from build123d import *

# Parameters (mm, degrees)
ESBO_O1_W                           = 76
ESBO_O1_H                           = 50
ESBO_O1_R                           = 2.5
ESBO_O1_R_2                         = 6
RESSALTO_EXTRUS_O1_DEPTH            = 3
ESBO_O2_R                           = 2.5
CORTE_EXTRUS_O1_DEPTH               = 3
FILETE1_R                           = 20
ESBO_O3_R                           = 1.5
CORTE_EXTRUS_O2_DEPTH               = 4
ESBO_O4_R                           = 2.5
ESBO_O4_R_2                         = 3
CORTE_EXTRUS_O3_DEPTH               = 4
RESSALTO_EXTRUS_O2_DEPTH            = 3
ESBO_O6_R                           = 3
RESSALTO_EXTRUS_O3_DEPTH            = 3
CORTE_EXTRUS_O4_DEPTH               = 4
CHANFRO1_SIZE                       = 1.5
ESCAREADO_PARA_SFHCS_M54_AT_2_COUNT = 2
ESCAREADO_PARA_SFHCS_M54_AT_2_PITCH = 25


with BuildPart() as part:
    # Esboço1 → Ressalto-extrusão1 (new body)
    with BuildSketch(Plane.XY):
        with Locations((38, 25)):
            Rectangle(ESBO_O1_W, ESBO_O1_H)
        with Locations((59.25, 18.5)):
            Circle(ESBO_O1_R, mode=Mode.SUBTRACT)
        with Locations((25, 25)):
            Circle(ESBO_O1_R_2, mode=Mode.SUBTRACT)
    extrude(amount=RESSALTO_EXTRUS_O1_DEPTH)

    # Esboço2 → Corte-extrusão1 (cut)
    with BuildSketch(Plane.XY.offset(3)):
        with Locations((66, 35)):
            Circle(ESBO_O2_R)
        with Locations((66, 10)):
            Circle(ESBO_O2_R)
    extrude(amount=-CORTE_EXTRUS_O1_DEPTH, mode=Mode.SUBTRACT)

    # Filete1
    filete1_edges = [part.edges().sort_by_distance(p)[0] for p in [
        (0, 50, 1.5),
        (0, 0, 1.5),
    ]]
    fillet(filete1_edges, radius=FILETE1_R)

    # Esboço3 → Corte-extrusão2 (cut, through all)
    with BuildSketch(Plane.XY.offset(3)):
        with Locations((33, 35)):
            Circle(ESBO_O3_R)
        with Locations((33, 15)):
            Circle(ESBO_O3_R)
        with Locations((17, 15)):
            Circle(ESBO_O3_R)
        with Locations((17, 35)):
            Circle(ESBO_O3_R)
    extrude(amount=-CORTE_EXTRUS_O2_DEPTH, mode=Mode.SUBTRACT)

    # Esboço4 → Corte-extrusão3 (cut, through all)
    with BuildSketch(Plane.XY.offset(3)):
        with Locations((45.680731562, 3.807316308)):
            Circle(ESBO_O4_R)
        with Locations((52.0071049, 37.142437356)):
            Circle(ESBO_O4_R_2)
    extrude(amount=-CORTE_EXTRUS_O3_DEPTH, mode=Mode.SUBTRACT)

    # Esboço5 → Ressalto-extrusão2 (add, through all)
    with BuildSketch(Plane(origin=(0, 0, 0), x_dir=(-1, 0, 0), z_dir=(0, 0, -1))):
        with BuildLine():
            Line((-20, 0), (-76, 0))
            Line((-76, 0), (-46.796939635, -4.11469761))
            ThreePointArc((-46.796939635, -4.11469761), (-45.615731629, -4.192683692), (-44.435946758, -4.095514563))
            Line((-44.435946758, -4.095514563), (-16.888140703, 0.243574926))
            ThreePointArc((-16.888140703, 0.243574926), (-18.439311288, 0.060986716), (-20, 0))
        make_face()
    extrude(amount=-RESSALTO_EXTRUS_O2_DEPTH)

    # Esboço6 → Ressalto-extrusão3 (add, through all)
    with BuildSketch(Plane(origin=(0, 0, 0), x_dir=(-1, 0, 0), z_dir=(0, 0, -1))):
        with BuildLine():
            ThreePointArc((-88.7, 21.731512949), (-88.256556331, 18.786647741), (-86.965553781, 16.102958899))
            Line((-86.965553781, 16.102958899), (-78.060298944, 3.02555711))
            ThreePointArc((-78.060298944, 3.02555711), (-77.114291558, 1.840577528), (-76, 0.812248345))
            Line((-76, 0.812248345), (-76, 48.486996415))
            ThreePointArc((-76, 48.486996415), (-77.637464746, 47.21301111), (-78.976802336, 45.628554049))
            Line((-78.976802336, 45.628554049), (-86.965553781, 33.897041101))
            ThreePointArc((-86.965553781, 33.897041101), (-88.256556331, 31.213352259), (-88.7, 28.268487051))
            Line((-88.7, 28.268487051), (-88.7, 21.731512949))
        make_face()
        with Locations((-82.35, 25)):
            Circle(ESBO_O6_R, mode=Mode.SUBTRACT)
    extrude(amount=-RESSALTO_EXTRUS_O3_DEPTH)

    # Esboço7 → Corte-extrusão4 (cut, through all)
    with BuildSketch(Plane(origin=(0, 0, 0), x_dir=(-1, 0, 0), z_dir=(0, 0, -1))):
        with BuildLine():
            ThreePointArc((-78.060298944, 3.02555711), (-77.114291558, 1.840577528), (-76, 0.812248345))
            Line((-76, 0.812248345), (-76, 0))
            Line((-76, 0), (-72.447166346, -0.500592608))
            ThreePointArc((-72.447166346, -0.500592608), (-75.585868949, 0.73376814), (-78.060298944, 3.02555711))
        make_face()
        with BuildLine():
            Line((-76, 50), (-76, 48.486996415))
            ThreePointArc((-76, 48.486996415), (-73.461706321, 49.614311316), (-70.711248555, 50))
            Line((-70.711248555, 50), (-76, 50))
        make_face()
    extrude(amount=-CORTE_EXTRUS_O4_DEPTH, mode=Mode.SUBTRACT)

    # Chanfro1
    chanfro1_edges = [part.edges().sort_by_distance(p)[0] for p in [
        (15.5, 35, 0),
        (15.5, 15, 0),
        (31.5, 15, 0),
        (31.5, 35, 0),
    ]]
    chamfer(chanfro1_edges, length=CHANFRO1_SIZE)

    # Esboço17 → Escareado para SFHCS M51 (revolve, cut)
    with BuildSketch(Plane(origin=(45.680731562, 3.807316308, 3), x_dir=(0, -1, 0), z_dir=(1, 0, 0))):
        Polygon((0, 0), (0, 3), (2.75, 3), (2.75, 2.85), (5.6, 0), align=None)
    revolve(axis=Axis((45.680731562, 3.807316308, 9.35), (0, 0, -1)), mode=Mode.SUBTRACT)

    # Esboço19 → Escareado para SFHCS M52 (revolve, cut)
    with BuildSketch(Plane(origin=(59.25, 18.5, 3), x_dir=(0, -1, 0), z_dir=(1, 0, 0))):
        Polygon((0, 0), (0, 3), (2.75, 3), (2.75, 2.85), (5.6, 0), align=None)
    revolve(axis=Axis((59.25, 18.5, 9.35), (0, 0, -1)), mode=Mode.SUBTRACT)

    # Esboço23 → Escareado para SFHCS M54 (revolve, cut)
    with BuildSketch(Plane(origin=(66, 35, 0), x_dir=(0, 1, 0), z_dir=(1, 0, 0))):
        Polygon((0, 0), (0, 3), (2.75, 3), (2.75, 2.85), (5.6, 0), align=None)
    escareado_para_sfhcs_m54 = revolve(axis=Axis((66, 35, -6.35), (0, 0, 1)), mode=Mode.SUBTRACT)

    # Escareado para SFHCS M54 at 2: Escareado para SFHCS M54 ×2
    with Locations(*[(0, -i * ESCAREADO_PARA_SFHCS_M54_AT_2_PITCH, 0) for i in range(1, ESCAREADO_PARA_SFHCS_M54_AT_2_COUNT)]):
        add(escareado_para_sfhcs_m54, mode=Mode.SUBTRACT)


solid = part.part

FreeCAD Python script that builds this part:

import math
import FreeCAD as App
import Part
import Sketcher

V = App.Vector
Q = App.Units.Quantity


def edges_at(feature, points):
    """Names of the edges that pass closest to the given points."""
    edges = feature.Shape.Edges
    near = lambda p: min(range(len(edges)), key=lambda i: edges[i].distToShape(Part.Vertex(*p))[0])
    return sorted({f"Edge{near(p) + 1}" for p in points})

doc = App.newDocument("Part")
body = doc.addObject("PartDesign::Body", "Body")

sketch1 = body.newObject("Sketcher::SketchObject", "Sketch")
sketch1.AttachmentSupport = (doc.getObject("XY_Plane"), [""])
sketch1.MapMode = "FlatFace"
sketch1.addGeometry([
    Part.LineSegment(V(0, 50, 0), V(0, 0, 0)),
    Part.LineSegment(V(0, 0, 0), V(76, 0, 0)),
    Part.LineSegment(V(76, 0, 0), V(76, 50, 0)),
    Part.LineSegment(V(76, 50, 0), V(0, 50, 0)),
    Part.Circle(V(59.2, 18.5, 0), V(0, 0, 1), 2.5),
    Part.Circle(V(25, 25, 0), V(0, 0, 1), 6),
], False)
sketch1.addConstraint([
    Sketcher.Constraint("Coincident", 0, 2, 1, 1),
    Sketcher.Constraint("Coincident", 1, 2, 2, 1),
    Sketcher.Constraint("Coincident", 2, 2, 3, 1),
    Sketcher.Constraint("Coincident", 3, 2, 0, 1),
    Sketcher.Constraint("Vertical", 0),
    Sketcher.Constraint("Horizontal", 1),
    Sketcher.Constraint("Vertical", 2),
    Sketcher.Constraint("Horizontal", 3),
    Sketcher.Constraint("Coincident", 0, 2, -1, 1),
    Sketcher.Constraint("Diameter", 4, Q("5 mm")),
    Sketcher.Constraint("Diameter", 5, Q("12 mm")),
    Sketcher.Constraint("DistanceX", 1, 1, 1, 2, Q("76 mm")),
    Sketcher.Constraint("DistanceY", 0, 2, 0, 1, Q("50 mm")),
    Sketcher.Constraint("DistanceX", -1, 1, 5, 3, Q("25 mm")),
    Sketcher.Constraint("DistanceY", -1, 1, 5, 3, Q("25 mm")),
    Sketcher.Constraint("DistanceY", -1, 1, 4, 3, Q("18.5 mm")),
    Sketcher.Constraint("DistanceX", -1, 1, 4, 3, Q("59.25 mm")),
])
pad1 = body.newObject("PartDesign::Pad", "Pad")
pad1.Profile = sketch1
pad1.Length = 3

sketch2 = body.newObject("Sketcher::SketchObject", "Sketch001")
sketch2.AttachmentSupport = (doc.getObject("XY_Plane"), [""])
sketch2.MapMode = "FlatFace"
sketch2.AttachmentOffset = App.Placement(V(0, 0, 3), App.Rotation())
sketch2.addGeometry([
    Part.Circle(V(66, 35, 0), V(0, 0, 1), 2.5),
    Part.Circle(V(66, 10, 0), V(0, 0, 1), 2.5),
], False)
sketch2.addConstraint([
    Sketcher.Constraint("Equal", 0, 1),
    Sketcher.Constraint("Vertical", 0, 3, 1, 3),
    Sketcher.Constraint("Diameter", 0, Q("5 mm")),
    Sketcher.Constraint("DistanceX", -1, 1, 0, 3, Q("66 mm")),
    Sketcher.Constraint("DistanceY", -1, 1, 0, 3, Q("35 mm")),
    Sketcher.Constraint("DistanceY", -1, 1, 1, 3, Q("10 mm")),
])
pocket1 = body.newObject("PartDesign::Pocket", "Pocket")
pocket1.Profile = sketch2
pocket1.Length = 3
doc.recompute()

fillet = body.newObject("PartDesign::Fillet", "Fillet")
fillet.Base = (pocket1, edges_at(pocket1, [(0, 50, 1.5), (0, 0, 1.5)]))
fillet.Radius = 20

sketch3 = body.newObject("Sketcher::SketchObject", "Sketch002")
sketch3.AttachmentSupport = (doc.getObject("XY_Plane"), [""])
sketch3.MapMode = "FlatFace"
sketch3.AttachmentOffset = App.Placement(V(0, 0, 3), App.Rotation())
sketch3.addGeometry([
    Part.Circle(V(33, 35, 0), V(0, 0, 1), 1.5),
    Part.Circle(V(33, 15, 0), V(0, 0, 1), 1.5),
    Part.Circle(V(17, 15, 0), V(0, 0, 1), 1.5),
    Part.Circle(V(17, 35, 0), V(0, 0, 1), 1.5),
], False)
sketch3.addConstraint([
    Sketcher.Constraint("Equal", 0, 1),
    Sketcher.Constraint("Equal", 1, 2),
    Sketcher.Constraint("Equal", 2, 3),
    Sketcher.Constraint("Horizontal", 1, 3, 2, 3),
    Sketcher.Constraint("Horizontal", 0, 3, 3, 3),
    Sketcher.Constraint("Vertical", 0, 3, 1, 3),
    Sketcher.Constraint("Vertical", 2, 3, 3, 3),
    Sketcher.Constraint("Diameter", 0, Q("3 mm")),
    Sketcher.Constraint("DistanceX", -1, 1, 0, 3, Q("33 mm")),
    Sketcher.Constraint("DistanceY", -1, 1, 0, 3, Q("35 mm")),
    Sketcher.Constraint("DistanceY", -1, 1, 1, 3, Q("15 mm")),
    Sketcher.Constraint("DistanceX", -1, 1, 2, 3, Q("17 mm")),
])
pocket2 = body.newObject("PartDesign::Pocket", "Pocket001")
pocket2.Profile = sketch3
pocket2.Type = "ThroughAll"

sketch4 = body.newObject("Sketcher::SketchObject", "Sketch003")
sketch4.AttachmentSupport = (doc.getObject("XY_Plane"), [""])
sketch4.MapMode = "FlatFace"
sketch4.AttachmentOffset = App.Placement(V(0, 0, 3), App.Rotation())
sketch4.addGeometry([
    Part.Circle(V(45.7, 3.8, 0), V(0, 0, 1), 2.5),
    Part.Circle(V(52, 37.1, 0), V(0, 0, 1), 3),
], False)
sketch4.addConstraint([
    Sketcher.Constraint("Diameter", 0, Q("5 mm")),
    Sketcher.Constraint("Diameter", 1, Q("6 mm")),
    Sketcher.Constraint("DistanceX", -1, 1, 0, 3, Q("45.680732 mm")),
    Sketcher.Constraint("DistanceY", 0, 3, 1, 3, Q("33.335121 mm")),
    Sketcher.Constraint("DistanceY", -1, 1, 0, 3, Q("3.807316 mm")),
    Sketcher.Constraint("DistanceX", -1, 1, 1, 3, Q("52.007105 mm")),
])
pocket3 = body.newObject("PartDesign::Pocket", "Pocket002")
pocket3.Profile = sketch4
pocket3.Type = "ThroughAll"

sketch5 = body.newObject("Sketcher::SketchObject", "Sketch004")
sketch5.AttachmentSupport = (doc.getObject("XY_Plane"), [""])
sketch5.MapMode = "FlatFace"
sketch5.addGeometry([
    Part.LineSegment(V(20, 0, 0), V(76, 0, 0)),
    Part.LineSegment(V(76, 0, 0), V(46.8, -4.1, 0)),
    Part.ArcOfCircle(Part.Circle(V(45.7, 3.8, 0), V(0, 0, 1), 8), math.radians(-98.95), math.radians(-81.98)),
    Part.LineSegment(V(44.4, -4.1, 0), V(16.9, 0.2, 0)),
    Part.ArcOfCircle(Part.Circle(V(20, 20, 0), V(0, 0, 1), 20), math.radians(-98.95), math.radians(-90)),
], False)
sketch5.addConstraint([
    Sketcher.Constraint("Coincident", 0, 2, 1, 1),
    Sketcher.Constraint("Tangent", 1, 2, 2, 2),
    Sketcher.Constraint("Tangent", 2, 1, 3, 1),
    Sketcher.Constraint("Tangent", 3, 2, 4, 1),
    Sketcher.Constraint("Tangent", 4, 2, 0, 1),
    Sketcher.Constraint("Horizontal", 0),
    Sketcher.Constraint("PointOnObject", 0, 2, -1),
    Sketcher.Constraint("Radius", 4, Q("20 mm")),
    Sketcher.Constraint("DistanceX", 0, 1, 0, 2, Q("56 mm")),
    Sketcher.Constraint("DistanceX", -1, 1, 4, 3, Q("20 mm")),
    Sketcher.Constraint("Radius", 2, Q("8.000264 mm")),
    Sketcher.Constraint("DistanceX", 3, 2, 1, 2, Q("29.908799 mm")),
    Sketcher.Constraint("Distance", 3, Q("27.88744 mm")),
])
pad2 = body.newObject("PartDesign::Pad", "Pad001")
pad2.Profile = sketch5
pad2.Length = 3

sketch6 = body.newObject("Sketcher::SketchObject", "Sketch005")
sketch6.AttachmentSupport = (doc.getObject("XY_Plane"), [""])
sketch6.MapMode = "FlatFace"
sketch6.addGeometry([
    Part.ArcOfCircle(Part.Circle(V(78.7, 21.7, 0), V(0, 0, 1), 10), math.radians(-34), math.radians(0)),
    Part.LineSegment(V(87, 16.1, 0), V(78.1, 3, 0)),
    Part.ArcOfCircle(Part.Circle(V(69.8, 8.7, 0), V(0, 0, 1), 10), math.radians(-51.65), math.radians(-34.25)),
    Part.LineSegment(V(76, 0.8, 0), V(76, 48.5, 0)),
    Part.ArcOfCircle(Part.Circle(V(70.7, 40, 0), V(0, 0, 1), 10), math.radians(34), math.radians(58)),
    Part.LineSegment(V(79, 45.6, 0), V(87, 33.9, 0)),
    Part.ArcOfCircle(Part.Circle(V(78.7, 28.3, 0), V(0, 0, 1), 10), math.radians(0), math.radians(34)),
    Part.LineSegment(V(88.7, 28.3, 0), V(88.7, 21.7, 0)),
    Part.Circle(V(82.3, 25, 0), V(0, 0, 1), 3),
], False)
sketch6.addConstraint([
    Sketcher.Constraint("Tangent", 0, 1, 1, 1),
    Sketcher.Constraint("Tangent", 1, 2, 2, 2),
    Sketcher.Constraint("Coincident", 2, 1, 3, 1),
    Sketcher.Constraint("Coincident", 3, 2, 4, 2),
    Sketcher.Constraint("Tangent", 4, 1, 5, 1),
    Sketcher.Constraint("Tangent", 5, 2, 6, 2),
    Sketcher.Constraint("Tangent", 6, 1, 7, 1),
    Sketcher.Constraint("Tangent", 7, 2, 0, 2),
    Sketcher.Constraint("Vertical", 3),
    Sketcher.Constraint("Vertical", 7),
    Sketcher.Constraint("Equal", 0, 2),
    Sketcher.Constraint("Equal", 2, 4),
    Sketcher.Constraint("Equal", 4, 6),
    Sketcher.Constraint("Vertical", 0, 1, 5, 2),
    Sketcher.Constraint("Diameter", 8, Q("6 mm")),
    Sketcher.Constraint("Radius", 0, Q("10 mm")),
    Sketcher.Constraint("DistanceY", -1, 1, 4, 3, Q("40 mm")),
    Sketcher.Constraint("DistanceY", -1, 1, 8, 3, Q("25 mm")),
    Sketcher.Constraint("DistanceX", -1, 1, 2, 1, Q("76 mm")),
    Sketcher.Constraint("DistanceX", -1, 1, 0, 3, Q("78.7 mm")),
    Sketcher.Constraint("DistanceX", -1, 1, 8, 3, Q("82.35 mm")),
    Sketcher.Constraint("DistanceY", 3, 1, 3, 2, Q("47.674748 mm")),
    Sketcher.Constraint("DistanceX", -1, 1, 1, 2, Q("78.060299 mm")),
    Sketcher.Constraint("DistanceY", 2, 3, 0, 3, Q("13.077402 mm")),
    Sketcher.Constraint("DistanceY", 7, 2, 7, 1, Q("6.536974 mm")),
])
pad3 = body.newObject("PartDesign::Pad", "Pad002")
pad3.Profile = sketch6
pad3.Length = 3

sketch7 = body.newObject("Sketcher::SketchObject", "Sketch006")
sketch7.AttachmentSupport = (doc.getObject("XY_Plane"), [""])
sketch7.MapMode = "FlatFace"
sketch7.addGeometry([
    Part.ArcOfCircle(Part.Circle(V(69.8, 8.7, 0), V(0, 0, 1), 10), math.radians(-51.65), math.radians(-34.25)),
    Part.LineSegment(V(76, 0.8, 0), V(76, 0, 0)),
    Part.LineSegment(V(76, 0, 0), V(72.4, -0.5, 0)),
    Part.ArcOfCircle(Part.Circle(V(70.7, 8.4, 0), V(0, 0, 1), 9.1), math.radians(-79), math.radians(-37)),
    Part.LineSegment(V(76, 50, 0), V(76, 48.5, 0)),
    Part.ArcOfCircle(Part.Circle(V(70.7, 40, 0), V(0, 0, 1), 10), math.radians(58), math.radians(90)),
    Part.LineSegment(V(70.7, 50, 0), V(76, 50, 0)),
], False)
sketch7.addConstraint([
    Sketcher.Constraint("Coincident", 0, 1, 1, 1),
    Sketcher.Constraint("Coincident", 1, 2, 2, 1),
    Sketcher.Constraint("Coincident", 2, 2, 3, 1),
    Sketcher.Constraint("Coincident", 3, 2, 0, 2),
    Sketcher.Constraint("Coincident", 4, 2, 5, 1),
    Sketcher.Constraint("Tangent", 5, 2, 6, 1),
    Sketcher.Constraint("Coincident", 6, 2, 4, 1),
    Sketcher.Constraint("Vertical", 1),
    Sketcher.Constraint("Vertical", 4),
    Sketcher.Constraint("Horizontal", 6),
    Sketcher.Constraint("Equal", 0, 5),
    Sketcher.Constraint("PointOnObject", 1, 2, -1),
    Sketcher.Constraint("Vertical", 1, 2, 4, 2),
    Sketcher.Constraint("Radius", 0, Q("10 mm")),
    Sketcher.Constraint("DistanceY", -1, 1, 5, 3, Q("40 mm")),
    Sketcher.Constraint("DistanceX", -1, 1, 0, 1, Q("76 mm")),
    Sketcher.Constraint("Radius", 3, Q("9.109084 mm")),
    Sketcher.Constraint("DistanceX", 6, 1, 6, 2, Q("5.288751 mm")),
    Sketcher.Constraint("DistanceY", 1, 2, 1, 1, Q("0.812248 mm")),
    Sketcher.Constraint("DistanceX", -1, 1, 3, 2, Q("78.060299 mm")),
    Sketcher.Constraint("DistanceX", 0, 3, 3, 3, Q("0.945602 mm")),
    Sketcher.Constraint("DistanceX", 5, 3, 3, 3, Q("0.029098 mm")),
    Sketcher.Constraint("DistanceY", 2, 2, 0, 1, Q("1.312841 mm")),
])
pocket4 = body.newObject("PartDesign::Pocket", "Pocket003")
pocket4.Profile = sketch7
pocket4.Type = "ThroughAll"
pocket4.Reversed = True
doc.recompute()

chamfer = body.newObject("PartDesign::Chamfer", "Chamfer")
chamfer.Base = (pocket4, edges_at(pocket4, [
    (15.5, 35, 0),
    (15.5, 15, 0),
    (31.5, 15, 0),
    (31.5, 35, 0),
]))
chamfer.Size = 1.5

sketch8 = body.newObject("Sketcher::SketchObject", "Sketch007")
sketch8.AttachmentSupport = (doc.getObject("YZ_Plane"), [""])
sketch8.MapMode = "FlatFace"
sketch8.AttachmentOffset = App.Placement(V(0, 0, 45.680732), App.Rotation())
sketch8.addGeometry([
    Part.LineSegment(V(3.81, 0, 0), V(3.81, 3, 0)),
    Part.LineSegment(V(3.81, 3, 0), V(-1.79, 3, 0)),
    Part.LineSegment(V(-1.79, 3, 0), V(1.06, 0.15, 0)),
    Part.LineSegment(V(1.06, 0.15, 0), V(1.06, 0, 0)),
    Part.LineSegment(V(1.06, 0, 0), V(3.81, 0, 0)),
], False)
sketch8.addGeometry(Part.LineSegment(V(3.81, 3, 0), V(3.81, 0, 0)), True)
sketch8.addConstraint([
    Sketcher.Constraint("Coincident", 0, 2, 1, 1),
    Sketcher.Constraint("Coincident", 1, 2, 2, 1),
    Sketcher.Constraint("Coincident", 2, 2, 3, 1),
    Sketcher.Constraint("Coincident", 3, 2, 4, 1),
    Sketcher.Constraint("Coincident", 4, 2, 0, 1),
    Sketcher.Constraint("Vertical", 0),
    Sketcher.Constraint("Horizontal", 1),
    Sketcher.Constraint("Vertical", 3),
    Sketcher.Constraint("Horizontal", 4),
    Sketcher.Constraint("Vertical", 5),
    Sketcher.Constraint("Coincident", 5, 1, 0, 2),
    Sketcher.Constraint("PointOnObject", 3, 2, -1),
    Sketcher.Constraint("PointOnObject", 5, 2, -1),
    Sketcher.Constraint("DistanceY", 0, 1, 0, 2, Q("3 mm")),
    Sketcher.Constraint("Angle", 2, Q("-45 deg")),
    Sketcher.Constraint("DistanceX", 1, 2, 1, 1, Q("5.6 mm")),
    Sketcher.Constraint("DistanceX", 4, 1, 4, 2, Q("2.75 mm")),
    Sketcher.Constraint("DistanceX", -1, 1, 0, 2, Q("3.807316 mm")),
])
groove = body.newObject("PartDesign::Groove", "Groove")
groove.Profile = sketch8
groove.ReferenceAxis = (sketch8, ["Axis0"])
groove.Angle = 360

sketch9 = body.newObject("Sketcher::SketchObject", "Sketch008")
sketch9.AttachmentSupport = (doc.getObject("YZ_Plane"), [""])
sketch9.MapMode = "FlatFace"
sketch9.AttachmentOffset = App.Placement(V(0, 0, 59.25), App.Rotation())
sketch9.addGeometry([
    Part.LineSegment(V(18.5, 0, 0), V(18.5, 3, 0)),
    Part.LineSegment(V(18.5, 3, 0), V(12.9, 3, 0)),
    Part.LineSegment(V(12.9, 3, 0), V(15.75, 0.15, 0)),
    Part.LineSegment(V(15.75, 0.15, 0), V(15.75, 0, 0)),
    Part.LineSegment(V(15.75, 0, 0), V(18.5, 0, 0)),
], False)
sketch9.addGeometry(Part.LineSegment(V(18.5, 3, 0), V(18.5, 0, 0)), True)
sketch9.addConstraint([
    Sketcher.Constraint("Coincident", 0, 2, 1, 1),
    Sketcher.Constraint("Coincident", 1, 2, 2, 1),
    Sketcher.Constraint("Coincident", 2, 2, 3, 1),
    Sketcher.Constraint("Coincident", 3, 2, 4, 1),
    Sketcher.Constraint("Coincident", 4, 2, 0, 1),
    Sketcher.Constraint("Vertical", 0),
    Sketcher.Constraint("Horizontal", 1),
    Sketcher.Constraint("Vertical", 3),
    Sketcher.Constraint("Horizontal", 4),
    Sketcher.Constraint("Vertical", 5),
    Sketcher.Constraint("Coincident", 5, 1, 0, 2),
    Sketcher.Constraint("PointOnObject", 3, 2, -1),
    Sketcher.Constraint("PointOnObject", 5, 2, -1),
    Sketcher.Constraint("DistanceY", 0, 1, 0, 2, Q("3 mm")),
    Sketcher.Constraint("Angle", 2, Q("-45 deg")),
    Sketcher.Constraint("DistanceX", 1, 2, 1, 1, Q("5.6 mm")),
    Sketcher.Constraint("DistanceX", 4, 1, 4, 2, Q("2.75 mm")),
    Sketcher.Constraint("DistanceX", -1, 1, 0, 2, Q("18.5 mm")),
])
groove2 = body.newObject("PartDesign::Groove", "Groove001")
groove2.Profile = sketch9
groove2.ReferenceAxis = (sketch9, ["Axis0"])
groove2.Angle = 360

sketch10 = body.newObject("Sketcher::SketchObject", "Sketch009")
sketch10.AttachmentSupport = (doc.getObject("YZ_Plane"), [""])
sketch10.MapMode = "FlatFace"
sketch10.AttachmentOffset = App.Placement(V(0, 0, 66), App.Rotation())
sketch10.addGeometry([
    Part.LineSegment(V(35, 3, 0), V(35, 0, 0)),
    Part.LineSegment(V(35, 0, 0), V(40.6, 0, 0)),
    Part.LineSegment(V(40.6, 0, 0), V(37.75, 2.85, 0)),
    Part.LineSegment(V(37.75, 2.85, 0), V(37.75, 3, 0)),
    Part.LineSegment(V(37.75, 3, 0), V(35, 3, 0)),
], False)
sketch10.addGeometry(Part.LineSegment(V(35, 0, 0), V(35, 3, 0)), True)
sketch10.addConstraint([
    Sketcher.Constraint("Coincident", 0, 2, 1, 1),
    Sketcher.Constraint("Coincident", 1, 2, 2, 1),
    Sketcher.Constraint("Coincident", 2, 2, 3, 1),
    Sketcher.Constraint("Coincident", 3, 2, 4, 1),
    Sketcher.Constraint("Coincident", 4, 2, 0, 1),
    Sketcher.Constraint("Vertical", 0),
    Sketcher.Constraint("Horizontal", 1),
    Sketcher.Constraint("Vertical", 3),
    Sketcher.Constraint("Horizontal", 4),
    Sketcher.Constraint("Vertical", 5),
    Sketcher.Constraint("Coincident", 5, 1, 0, 2),
    Sketcher.Constraint("PointOnObject", 0, 2, -1),
    Sketcher.Constraint("Horizontal", 3, 2, 5, 2),
    Sketcher.Constraint("DistanceY", 0, 2, 0, 1, Q("3 mm")),
    Sketcher.Constraint("Angle", 2, Q("135 deg")),
    Sketcher.Constraint("DistanceX", 1, 1, 1, 2, Q("5.6 mm")),
    Sketcher.Constraint("DistanceX", -1, 1, 0, 2, Q("35 mm")),
    Sketcher.Constraint("DistanceX", 4, 2, 4, 1, Q("2.75 mm")),
])
groove3 = body.newObject("PartDesign::Groove", "Groove002")
groove3.Profile = sketch10
groove3.ReferenceAxis = (sketch10, ["Axis0"])
groove3.Angle = 360
doc.recompute()

linearpattern = body.newObject("PartDesign::LinearPattern", "LinearPattern")
linearpattern.Originals = [groove3]
linearpattern.Direction = (doc.getObject("Y_Axis"), [""])
linearpattern.Mode = "offset"
linearpattern.Offset = 25
linearpattern.Occurrences = 2
linearpattern.Reversed = True
body.Tip = linearpattern

doc.recompute()
